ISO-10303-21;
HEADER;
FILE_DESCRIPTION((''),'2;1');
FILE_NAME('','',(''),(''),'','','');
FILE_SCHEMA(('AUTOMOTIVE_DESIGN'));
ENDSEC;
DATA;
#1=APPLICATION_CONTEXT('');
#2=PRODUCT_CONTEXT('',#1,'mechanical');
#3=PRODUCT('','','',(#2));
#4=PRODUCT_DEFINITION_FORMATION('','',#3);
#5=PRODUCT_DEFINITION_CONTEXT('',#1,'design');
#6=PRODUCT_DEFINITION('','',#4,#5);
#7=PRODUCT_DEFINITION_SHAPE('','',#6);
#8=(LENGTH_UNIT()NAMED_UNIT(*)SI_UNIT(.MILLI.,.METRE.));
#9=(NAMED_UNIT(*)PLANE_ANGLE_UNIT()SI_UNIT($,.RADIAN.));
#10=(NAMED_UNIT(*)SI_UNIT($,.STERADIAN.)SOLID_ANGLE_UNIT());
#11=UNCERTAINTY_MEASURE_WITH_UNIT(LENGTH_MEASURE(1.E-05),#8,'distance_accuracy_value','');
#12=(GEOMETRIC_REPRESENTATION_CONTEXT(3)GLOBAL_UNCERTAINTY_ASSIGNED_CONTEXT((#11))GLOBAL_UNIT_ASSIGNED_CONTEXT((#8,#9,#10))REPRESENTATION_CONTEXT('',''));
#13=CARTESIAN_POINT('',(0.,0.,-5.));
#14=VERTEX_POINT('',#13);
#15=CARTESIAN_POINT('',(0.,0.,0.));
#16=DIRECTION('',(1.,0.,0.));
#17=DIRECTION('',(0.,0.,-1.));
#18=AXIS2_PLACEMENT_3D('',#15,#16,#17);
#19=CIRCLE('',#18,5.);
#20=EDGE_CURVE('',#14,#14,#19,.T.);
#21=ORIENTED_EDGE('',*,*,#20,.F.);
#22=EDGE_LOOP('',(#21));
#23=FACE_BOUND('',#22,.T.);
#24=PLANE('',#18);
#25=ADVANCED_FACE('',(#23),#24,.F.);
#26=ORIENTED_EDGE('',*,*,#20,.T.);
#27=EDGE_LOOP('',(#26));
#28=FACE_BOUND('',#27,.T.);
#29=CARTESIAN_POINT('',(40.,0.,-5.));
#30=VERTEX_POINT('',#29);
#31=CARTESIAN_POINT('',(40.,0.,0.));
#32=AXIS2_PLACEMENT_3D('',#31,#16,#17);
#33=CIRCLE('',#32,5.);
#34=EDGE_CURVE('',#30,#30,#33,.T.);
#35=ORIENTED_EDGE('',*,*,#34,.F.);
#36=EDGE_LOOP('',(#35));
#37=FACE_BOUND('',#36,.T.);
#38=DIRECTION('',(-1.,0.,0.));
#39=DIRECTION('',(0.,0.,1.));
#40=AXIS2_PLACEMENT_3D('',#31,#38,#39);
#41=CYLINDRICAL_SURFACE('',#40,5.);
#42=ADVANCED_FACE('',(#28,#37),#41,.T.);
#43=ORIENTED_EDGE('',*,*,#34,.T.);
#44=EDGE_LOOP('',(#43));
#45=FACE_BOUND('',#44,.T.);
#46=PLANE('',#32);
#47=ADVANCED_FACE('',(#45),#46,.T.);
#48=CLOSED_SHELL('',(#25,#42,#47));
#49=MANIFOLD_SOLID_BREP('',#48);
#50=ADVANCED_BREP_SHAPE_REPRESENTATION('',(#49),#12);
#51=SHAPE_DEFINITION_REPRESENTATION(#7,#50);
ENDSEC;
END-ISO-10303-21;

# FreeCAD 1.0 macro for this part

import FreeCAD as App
import Part
import Sketcher
from FreeCAD import Vector

doc = App.newDocument("Part")
body = doc.addObject("PartDesign::Body", "Body")

sketch1 = doc.addObject("Sketcher::SketchObject", "Sketch")
body.addObject(sketch1)
sketch1.AttachmentSupport = (doc.YZ_Plane, [""])
sketch1.MapMode = "FlatFace"
sketch1.addGeometry(Part.Circle(Vector(0, 0, 0), Vector(0, 0, 1), 5), False)
sketch1.addConstraint(Sketcher.Constraint("Coincident", 0, 3, -1, 1))
sketch1.addConstraint(Sketcher.Constraint("Diameter", 0, 10.0))
pad1 = doc.addObject("PartDesign::Pad", "Pad")
body.addObject(pad1)
pad1.Profile = sketch1
pad1.Length = 40

doc.recompute()
